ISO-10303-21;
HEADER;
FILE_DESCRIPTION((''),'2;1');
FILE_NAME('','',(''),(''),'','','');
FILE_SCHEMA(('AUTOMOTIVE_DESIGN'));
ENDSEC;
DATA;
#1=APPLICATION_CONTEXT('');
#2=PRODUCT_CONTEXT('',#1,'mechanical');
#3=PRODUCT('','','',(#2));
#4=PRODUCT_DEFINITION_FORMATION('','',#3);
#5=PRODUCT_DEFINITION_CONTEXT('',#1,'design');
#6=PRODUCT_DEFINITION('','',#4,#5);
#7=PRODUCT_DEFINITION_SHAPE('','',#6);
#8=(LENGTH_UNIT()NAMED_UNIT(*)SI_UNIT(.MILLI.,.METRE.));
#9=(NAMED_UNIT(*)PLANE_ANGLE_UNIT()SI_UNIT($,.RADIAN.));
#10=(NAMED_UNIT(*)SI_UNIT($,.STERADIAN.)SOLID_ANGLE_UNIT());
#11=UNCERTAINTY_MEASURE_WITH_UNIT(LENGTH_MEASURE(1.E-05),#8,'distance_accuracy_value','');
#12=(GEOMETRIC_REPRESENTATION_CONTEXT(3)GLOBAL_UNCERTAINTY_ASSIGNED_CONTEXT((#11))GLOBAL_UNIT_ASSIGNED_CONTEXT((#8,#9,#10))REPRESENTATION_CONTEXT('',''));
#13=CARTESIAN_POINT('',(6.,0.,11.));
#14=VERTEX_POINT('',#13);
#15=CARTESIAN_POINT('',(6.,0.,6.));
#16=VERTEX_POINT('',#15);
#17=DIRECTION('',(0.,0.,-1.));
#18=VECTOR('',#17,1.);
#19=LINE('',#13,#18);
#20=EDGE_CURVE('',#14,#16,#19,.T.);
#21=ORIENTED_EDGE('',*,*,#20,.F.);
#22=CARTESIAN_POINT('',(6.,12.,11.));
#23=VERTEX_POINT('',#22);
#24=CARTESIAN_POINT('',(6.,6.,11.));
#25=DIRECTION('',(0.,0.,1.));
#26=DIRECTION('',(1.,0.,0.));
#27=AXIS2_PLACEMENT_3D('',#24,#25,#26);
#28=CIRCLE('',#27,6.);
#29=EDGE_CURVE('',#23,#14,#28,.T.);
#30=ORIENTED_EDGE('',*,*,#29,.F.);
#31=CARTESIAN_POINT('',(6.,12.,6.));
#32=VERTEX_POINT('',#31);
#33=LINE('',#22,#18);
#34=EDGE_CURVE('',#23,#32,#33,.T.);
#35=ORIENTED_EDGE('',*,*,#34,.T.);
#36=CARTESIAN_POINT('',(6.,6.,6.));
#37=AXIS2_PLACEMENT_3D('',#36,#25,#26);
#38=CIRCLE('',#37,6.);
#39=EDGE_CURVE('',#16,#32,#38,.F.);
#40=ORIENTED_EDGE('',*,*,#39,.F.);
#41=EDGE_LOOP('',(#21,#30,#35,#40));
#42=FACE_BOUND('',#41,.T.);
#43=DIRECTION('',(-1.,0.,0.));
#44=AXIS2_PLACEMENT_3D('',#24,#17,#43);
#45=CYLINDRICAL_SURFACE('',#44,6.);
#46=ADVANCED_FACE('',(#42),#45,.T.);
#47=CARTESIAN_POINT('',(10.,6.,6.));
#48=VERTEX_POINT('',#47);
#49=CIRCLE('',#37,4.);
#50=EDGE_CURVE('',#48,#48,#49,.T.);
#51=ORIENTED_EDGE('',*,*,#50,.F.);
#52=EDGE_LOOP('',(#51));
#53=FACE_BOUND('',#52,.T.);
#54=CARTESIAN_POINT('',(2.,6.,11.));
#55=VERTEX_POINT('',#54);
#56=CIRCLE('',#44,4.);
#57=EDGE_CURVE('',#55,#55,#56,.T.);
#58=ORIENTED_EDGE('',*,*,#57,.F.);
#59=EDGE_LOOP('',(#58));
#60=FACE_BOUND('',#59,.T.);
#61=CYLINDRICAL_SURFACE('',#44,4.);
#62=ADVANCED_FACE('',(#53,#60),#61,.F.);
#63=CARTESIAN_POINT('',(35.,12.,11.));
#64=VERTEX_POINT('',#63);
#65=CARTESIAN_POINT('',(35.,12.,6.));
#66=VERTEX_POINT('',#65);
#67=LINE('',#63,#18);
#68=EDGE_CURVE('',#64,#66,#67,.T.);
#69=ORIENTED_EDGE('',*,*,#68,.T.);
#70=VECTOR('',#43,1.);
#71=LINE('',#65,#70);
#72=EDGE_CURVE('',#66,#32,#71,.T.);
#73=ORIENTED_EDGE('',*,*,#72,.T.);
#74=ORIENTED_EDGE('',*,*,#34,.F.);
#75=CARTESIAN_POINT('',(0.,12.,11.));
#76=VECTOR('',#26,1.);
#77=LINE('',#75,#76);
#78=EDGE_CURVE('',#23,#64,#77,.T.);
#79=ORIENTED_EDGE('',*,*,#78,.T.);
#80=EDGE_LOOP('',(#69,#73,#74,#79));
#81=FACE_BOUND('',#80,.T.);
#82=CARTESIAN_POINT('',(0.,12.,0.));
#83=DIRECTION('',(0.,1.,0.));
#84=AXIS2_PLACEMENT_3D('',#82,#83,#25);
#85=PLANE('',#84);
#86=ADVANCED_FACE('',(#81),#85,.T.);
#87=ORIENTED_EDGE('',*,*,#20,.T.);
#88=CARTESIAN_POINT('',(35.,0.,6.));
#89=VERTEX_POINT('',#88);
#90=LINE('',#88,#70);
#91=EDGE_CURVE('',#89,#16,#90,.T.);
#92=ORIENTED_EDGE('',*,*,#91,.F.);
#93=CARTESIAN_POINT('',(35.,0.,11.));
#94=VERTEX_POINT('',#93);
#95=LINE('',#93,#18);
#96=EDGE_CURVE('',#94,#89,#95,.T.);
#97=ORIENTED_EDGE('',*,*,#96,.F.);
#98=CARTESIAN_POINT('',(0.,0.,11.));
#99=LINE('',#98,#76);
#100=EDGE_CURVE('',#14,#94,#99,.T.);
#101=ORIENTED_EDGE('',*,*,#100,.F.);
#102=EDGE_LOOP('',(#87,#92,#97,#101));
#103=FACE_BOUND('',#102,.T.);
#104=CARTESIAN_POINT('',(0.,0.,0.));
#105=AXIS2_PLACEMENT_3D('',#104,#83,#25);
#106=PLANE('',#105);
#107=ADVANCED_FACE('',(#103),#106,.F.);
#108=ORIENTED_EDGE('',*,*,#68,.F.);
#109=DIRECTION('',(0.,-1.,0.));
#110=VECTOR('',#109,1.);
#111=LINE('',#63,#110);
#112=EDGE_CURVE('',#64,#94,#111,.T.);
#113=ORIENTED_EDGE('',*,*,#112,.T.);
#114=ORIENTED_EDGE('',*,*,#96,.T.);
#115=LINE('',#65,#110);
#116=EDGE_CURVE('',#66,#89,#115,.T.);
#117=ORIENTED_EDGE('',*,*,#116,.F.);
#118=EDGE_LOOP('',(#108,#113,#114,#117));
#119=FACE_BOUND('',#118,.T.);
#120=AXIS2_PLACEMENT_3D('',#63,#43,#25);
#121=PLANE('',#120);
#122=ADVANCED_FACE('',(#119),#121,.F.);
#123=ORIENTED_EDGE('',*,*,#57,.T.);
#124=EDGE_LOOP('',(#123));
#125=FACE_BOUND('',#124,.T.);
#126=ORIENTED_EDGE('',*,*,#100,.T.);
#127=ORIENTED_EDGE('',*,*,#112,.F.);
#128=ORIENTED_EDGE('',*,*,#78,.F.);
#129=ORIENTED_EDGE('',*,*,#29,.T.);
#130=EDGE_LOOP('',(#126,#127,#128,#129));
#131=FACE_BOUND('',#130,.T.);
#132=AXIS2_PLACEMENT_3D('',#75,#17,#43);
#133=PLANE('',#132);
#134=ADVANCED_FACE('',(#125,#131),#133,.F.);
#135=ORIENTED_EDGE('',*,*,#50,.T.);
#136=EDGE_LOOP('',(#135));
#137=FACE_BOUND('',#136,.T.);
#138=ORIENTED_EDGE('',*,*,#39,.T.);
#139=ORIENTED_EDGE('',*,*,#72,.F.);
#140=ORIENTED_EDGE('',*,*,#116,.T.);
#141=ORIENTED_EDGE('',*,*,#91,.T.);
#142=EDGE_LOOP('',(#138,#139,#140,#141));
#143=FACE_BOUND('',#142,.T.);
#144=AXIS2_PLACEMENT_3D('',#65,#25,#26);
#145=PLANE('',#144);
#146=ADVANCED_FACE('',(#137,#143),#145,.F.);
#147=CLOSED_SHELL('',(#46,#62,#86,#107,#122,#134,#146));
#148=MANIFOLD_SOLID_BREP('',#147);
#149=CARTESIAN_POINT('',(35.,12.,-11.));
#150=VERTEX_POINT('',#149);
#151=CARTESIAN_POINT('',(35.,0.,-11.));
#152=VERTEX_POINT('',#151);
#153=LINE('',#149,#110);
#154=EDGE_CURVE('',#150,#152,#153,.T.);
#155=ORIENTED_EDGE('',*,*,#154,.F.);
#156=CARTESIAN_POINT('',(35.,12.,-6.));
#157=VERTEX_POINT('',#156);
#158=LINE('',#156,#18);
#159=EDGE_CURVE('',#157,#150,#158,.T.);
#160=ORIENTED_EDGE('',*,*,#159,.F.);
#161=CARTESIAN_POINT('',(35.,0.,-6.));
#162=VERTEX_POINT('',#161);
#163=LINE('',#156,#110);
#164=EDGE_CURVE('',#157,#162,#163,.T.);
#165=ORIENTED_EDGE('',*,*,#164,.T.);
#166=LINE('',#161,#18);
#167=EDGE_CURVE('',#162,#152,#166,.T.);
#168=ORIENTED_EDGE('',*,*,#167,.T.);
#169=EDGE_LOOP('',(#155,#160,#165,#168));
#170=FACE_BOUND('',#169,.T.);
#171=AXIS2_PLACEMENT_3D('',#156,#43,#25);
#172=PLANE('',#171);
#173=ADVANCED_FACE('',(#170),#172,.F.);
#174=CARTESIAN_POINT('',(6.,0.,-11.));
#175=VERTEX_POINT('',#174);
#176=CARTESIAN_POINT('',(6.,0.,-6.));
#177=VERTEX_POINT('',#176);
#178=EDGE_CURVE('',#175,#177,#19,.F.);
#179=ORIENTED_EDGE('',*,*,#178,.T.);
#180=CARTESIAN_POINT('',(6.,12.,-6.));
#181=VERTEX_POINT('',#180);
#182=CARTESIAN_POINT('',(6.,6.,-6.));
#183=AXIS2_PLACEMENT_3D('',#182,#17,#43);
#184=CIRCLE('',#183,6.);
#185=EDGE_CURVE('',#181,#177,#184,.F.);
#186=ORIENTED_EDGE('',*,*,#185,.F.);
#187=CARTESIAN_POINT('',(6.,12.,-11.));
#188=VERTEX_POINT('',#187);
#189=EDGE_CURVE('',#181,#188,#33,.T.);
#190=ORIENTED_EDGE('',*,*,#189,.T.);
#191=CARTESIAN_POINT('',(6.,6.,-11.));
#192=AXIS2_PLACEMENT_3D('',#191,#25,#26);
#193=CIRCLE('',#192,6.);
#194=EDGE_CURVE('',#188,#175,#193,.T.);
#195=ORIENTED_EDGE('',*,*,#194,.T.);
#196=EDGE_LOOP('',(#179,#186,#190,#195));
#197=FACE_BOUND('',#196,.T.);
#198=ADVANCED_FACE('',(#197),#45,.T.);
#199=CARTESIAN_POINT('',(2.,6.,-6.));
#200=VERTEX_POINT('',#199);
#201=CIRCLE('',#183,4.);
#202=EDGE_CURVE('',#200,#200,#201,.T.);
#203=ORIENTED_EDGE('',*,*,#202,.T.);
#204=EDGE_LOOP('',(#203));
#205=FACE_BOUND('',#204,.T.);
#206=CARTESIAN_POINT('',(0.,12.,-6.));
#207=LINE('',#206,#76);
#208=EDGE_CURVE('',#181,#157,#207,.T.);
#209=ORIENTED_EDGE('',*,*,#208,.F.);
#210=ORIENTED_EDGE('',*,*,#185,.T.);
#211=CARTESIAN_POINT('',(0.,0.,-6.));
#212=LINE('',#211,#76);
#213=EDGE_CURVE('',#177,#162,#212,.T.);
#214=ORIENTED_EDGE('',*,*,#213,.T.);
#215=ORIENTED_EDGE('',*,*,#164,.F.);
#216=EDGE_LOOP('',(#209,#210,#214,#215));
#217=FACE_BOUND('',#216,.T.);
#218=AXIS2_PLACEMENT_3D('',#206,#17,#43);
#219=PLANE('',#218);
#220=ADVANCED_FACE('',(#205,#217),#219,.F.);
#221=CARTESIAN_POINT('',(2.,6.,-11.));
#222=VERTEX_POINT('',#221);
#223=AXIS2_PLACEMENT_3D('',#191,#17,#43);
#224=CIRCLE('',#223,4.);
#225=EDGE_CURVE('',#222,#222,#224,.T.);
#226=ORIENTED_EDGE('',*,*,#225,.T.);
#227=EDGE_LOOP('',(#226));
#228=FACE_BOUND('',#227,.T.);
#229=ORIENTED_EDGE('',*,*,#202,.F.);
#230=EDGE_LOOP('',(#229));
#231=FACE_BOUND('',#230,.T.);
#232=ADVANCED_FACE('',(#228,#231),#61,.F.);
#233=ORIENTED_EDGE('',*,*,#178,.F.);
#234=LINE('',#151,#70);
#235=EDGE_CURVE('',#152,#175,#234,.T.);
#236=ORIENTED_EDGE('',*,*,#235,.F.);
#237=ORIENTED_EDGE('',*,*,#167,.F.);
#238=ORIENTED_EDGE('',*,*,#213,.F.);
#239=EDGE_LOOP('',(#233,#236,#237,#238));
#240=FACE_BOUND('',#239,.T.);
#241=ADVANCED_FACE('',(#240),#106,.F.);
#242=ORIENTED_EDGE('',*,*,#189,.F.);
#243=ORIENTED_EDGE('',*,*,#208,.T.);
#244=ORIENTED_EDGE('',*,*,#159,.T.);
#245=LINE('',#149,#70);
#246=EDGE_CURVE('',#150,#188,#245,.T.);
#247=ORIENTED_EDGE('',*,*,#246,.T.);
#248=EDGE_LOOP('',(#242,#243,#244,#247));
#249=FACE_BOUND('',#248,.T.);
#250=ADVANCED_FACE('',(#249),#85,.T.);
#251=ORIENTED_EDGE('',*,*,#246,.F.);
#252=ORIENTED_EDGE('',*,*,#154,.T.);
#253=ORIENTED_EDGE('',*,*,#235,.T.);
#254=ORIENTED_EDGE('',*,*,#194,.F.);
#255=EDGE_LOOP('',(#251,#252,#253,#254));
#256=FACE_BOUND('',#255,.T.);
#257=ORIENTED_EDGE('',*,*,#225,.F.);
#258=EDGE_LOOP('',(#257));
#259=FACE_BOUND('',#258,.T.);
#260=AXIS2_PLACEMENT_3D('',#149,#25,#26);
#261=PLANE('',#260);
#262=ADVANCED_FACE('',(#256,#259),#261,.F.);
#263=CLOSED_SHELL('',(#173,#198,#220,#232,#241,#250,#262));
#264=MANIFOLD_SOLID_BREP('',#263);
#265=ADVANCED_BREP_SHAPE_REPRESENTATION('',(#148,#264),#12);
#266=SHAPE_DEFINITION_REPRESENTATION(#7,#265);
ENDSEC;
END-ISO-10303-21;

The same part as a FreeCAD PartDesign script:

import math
import FreeCAD as App
import Part
import Sketcher


def add_polygon(sketch, points):
    """Adds a closed chain of lines whose ends are joined by coincident constraints."""
    first, n = sketch.GeometryCount, len(points)
    for a, b in zip(points, points[1:] + points[:1]):
        sketch.addGeometry(Part.LineSegment(App.Vector(*a, 0), App.Vector(*b, 0)), False)
    for i in range(n):
        sketch.addConstraint(Sketcher.Constraint("Coincident", first + i, 2, first + (i + 1) % n, 1))

doc = App.newDocument("Part")
body = doc.addObject("PartDesign::Body", "Body")

# Sketch on XZ plane
sketch1 = body.newObject("Sketcher::SketchObject", "Sketch")
sketch1.AttachmentSupport = (doc.getObject("XZ_Plane"), [""])
sketch1.MapMode = "FlatFace"
add_polygon(sketch1, [(0, -11), (0, -6), (35, -6), (35, -11)])  # lines 0-3
sketch1.addConstraint(Sketcher.Constraint("Vertical", 0))
sketch1.addConstraint(Sketcher.Constraint("Horizontal", 1))
sketch1.addConstraint(Sketcher.Constraint("Vertical", 2))
sketch1.addConstraint(Sketcher.Constraint("Horizontal", 3))
sketch1.addConstraint(Sketcher.Constraint("PointOnObject", 0, 2, -2))
sketch1.addConstraint(Sketcher.Constraint("DistanceX", 1, 1, 1, 2, 35.0))
sketch1.addConstraint(Sketcher.Constraint("DistanceY", 0, 1, 0, 2, 5.0))
sketch1.addConstraint(Sketcher.Constraint("DistanceY", 0, 2, -1, 1, 6.0))
pad1 = body.newObject("PartDesign::Pad", "Pad")
pad1.Profile = sketch1
pad1.Length = 12
pad1.Reversed = True
body2 = doc.addObject("PartDesign::Body", "Body001")

# Sketch on XZ plane
sketch2 = body2.newObject("Sketcher::SketchObject", "Sketch001")
sketch2.AttachmentSupport = (doc.getObject("XZ_Plane001"), [""])
sketch2.MapMode = "FlatFace"
add_polygon(sketch2, [(0, 6), (0, 11), (35, 11), (35, 6)])  # lines 0-3
sketch2.addConstraint(Sketcher.Constraint("Vertical", 0))
sketch2.addConstraint(Sketcher.Constraint("Horizontal", 1))
sketch2.addConstraint(Sketcher.Constraint("Vertical", 2))
sketch2.addConstraint(Sketcher.Constraint("Horizontal", 3))
sketch2.addConstraint(Sketcher.Constraint("PointOnObject", 0, 2, -2))
sketch2.addConstraint(Sketcher.Constraint("DistanceX", 1, 1, 1, 2, 35.0))
sketch2.addConstraint(Sketcher.Constraint("DistanceY", 0, 1, 0, 2, 5.0))
sketch2.addConstraint(Sketcher.Constraint("DistanceY", -1, 1, 0, 2, 11.0))
pad2 = body2.newObject("PartDesign::Pad", "Pad001")
pad2.Profile = sketch2
pad2.Length = 12
pad2.Reversed = True
body3 = doc.addObject("PartDesign::Body", "Body002")

# Sketch on XY plane
sketch3 = body3.newObject("Sketcher::SketchObject", "Sketch002")
sketch3.AttachmentSupport = (doc.getObject("XY_Plane002"), [""])
sketch3.MapMode = "FlatFace"
sketch3.AttachmentOffset = App.Placement(App.Vector(0, 0, -11), App.Rotation())
sketch3.addGeometry(Part.LineSegment(App.Vector(-6, 12, 0), App.Vector(6, 12, 0)), False)
sketch3.addGeometry(Part.ArcOfCircle(Part.Circle(App.Vector(6, 6, 0), App.Vector(0, 0, 1), 6), math.radians(90), math.radians(270)), False)
sketch3.addGeometry(Part.LineSegment(App.Vector(6, 0, 0), App.Vector(-6, 0, 0)), False)
sketch3.addGeometry(Part.LineSegment(App.Vector(-6, 0, 0), App.Vector(-6, 12, 0)), False)
sketch3.addConstraint(Sketcher.Constraint("Tangent", 0, 2, 1, 1))
sketch3.addConstraint(Sketcher.Constraint("Tangent", 1, 2, 2, 1))
sketch3.addConstraint(Sketcher.Constraint("Coincident", 2, 2, 3, 1))
sketch3.addConstraint(Sketcher.Constraint("Coincident", 3, 2, 0, 1))
sketch3.addConstraint(Sketcher.Constraint("Horizontal", 0))
sketch3.addConstraint(Sketcher.Constraint("Horizontal", 2))
sketch3.addConstraint(Sketcher.Constraint("Vertical", 3))
sketch3.addConstraint(Sketcher.Constraint("PointOnObject", 1, 2, -1))
sketch3.addConstraint(Sketcher.Constraint("Radius", 1, 6.0))
sketch3.addConstraint(Sketcher.Constraint("DistanceX", -1, 1, 1, 3, 6.0))
sketch3.addConstraint(Sketcher.Constraint("DistanceX", 0, 1, 0, 2, 12.269101))
pad3 = body3.newObject("PartDesign::Pad", "Pad002")
pad3.Profile = sketch3
pad3.Length = 22
doc.recompute()

body4 = doc.addObject("PartDesign::Body", "Body003")
body4.BaseFeature = body3
boolean = body.newObject("PartDesign::Boolean", "Boolean")
boolean.Type = "Cut"
boolean.addObjects([body4])
doc.recompute()

boolean2 = body2.newObject("PartDesign::Boolean", "Boolean001")
boolean2.Type = "Cut"
boolean2.addObjects([body3])
body5 = doc.addObject("PartDesign::Body", "Body004")

# Sketch on XY plane
sketch4 = body5.newObject("Sketcher::SketchObject", "Sketch003")
sketch4.AttachmentSupport = (doc.getObject("XY_Plane004"), [""])
sketch4.MapMode = "FlatFace"
sketch4.AttachmentOffset = App.Placement(App.Vector(0, 0, -11), App.Rotation())
sketch4.addGeometry(Part.Circle(App.Vector(6, 6, 0), App.Vector(0, 0, 1), 4), False)
sketch4.addConstraint(Sketcher.Constraint("Diameter", 0, 8.0))
sketch4.addConstraint(Sketcher.Constraint("DistanceX", -1, 1, 0, 3, 6.0))
sketch4.addConstraint(Sketcher.Constraint("DistanceY", -1, 1, 0, 3, 6.0))
pad4 = body5.newObject("PartDesign::Pad", "Pad003")
pad4.Profile = sketch4
pad4.Length = 22
doc.recompute()

body6 = doc.addObject("PartDesign::Body", "Body005")
body6.BaseFeature = body5
boolean3 = body.newObject("PartDesign::Boolean", "Boolean002")
boolean3.Type = "Cut"
boolean3.addObjects([body6])
doc.recompute()

boolean4 = body2.newObject("PartDesign::Boolean", "Boolean003")
boolean4.Type = "Cut"
boolean4.addObjects([body5])

doc.recompute()
